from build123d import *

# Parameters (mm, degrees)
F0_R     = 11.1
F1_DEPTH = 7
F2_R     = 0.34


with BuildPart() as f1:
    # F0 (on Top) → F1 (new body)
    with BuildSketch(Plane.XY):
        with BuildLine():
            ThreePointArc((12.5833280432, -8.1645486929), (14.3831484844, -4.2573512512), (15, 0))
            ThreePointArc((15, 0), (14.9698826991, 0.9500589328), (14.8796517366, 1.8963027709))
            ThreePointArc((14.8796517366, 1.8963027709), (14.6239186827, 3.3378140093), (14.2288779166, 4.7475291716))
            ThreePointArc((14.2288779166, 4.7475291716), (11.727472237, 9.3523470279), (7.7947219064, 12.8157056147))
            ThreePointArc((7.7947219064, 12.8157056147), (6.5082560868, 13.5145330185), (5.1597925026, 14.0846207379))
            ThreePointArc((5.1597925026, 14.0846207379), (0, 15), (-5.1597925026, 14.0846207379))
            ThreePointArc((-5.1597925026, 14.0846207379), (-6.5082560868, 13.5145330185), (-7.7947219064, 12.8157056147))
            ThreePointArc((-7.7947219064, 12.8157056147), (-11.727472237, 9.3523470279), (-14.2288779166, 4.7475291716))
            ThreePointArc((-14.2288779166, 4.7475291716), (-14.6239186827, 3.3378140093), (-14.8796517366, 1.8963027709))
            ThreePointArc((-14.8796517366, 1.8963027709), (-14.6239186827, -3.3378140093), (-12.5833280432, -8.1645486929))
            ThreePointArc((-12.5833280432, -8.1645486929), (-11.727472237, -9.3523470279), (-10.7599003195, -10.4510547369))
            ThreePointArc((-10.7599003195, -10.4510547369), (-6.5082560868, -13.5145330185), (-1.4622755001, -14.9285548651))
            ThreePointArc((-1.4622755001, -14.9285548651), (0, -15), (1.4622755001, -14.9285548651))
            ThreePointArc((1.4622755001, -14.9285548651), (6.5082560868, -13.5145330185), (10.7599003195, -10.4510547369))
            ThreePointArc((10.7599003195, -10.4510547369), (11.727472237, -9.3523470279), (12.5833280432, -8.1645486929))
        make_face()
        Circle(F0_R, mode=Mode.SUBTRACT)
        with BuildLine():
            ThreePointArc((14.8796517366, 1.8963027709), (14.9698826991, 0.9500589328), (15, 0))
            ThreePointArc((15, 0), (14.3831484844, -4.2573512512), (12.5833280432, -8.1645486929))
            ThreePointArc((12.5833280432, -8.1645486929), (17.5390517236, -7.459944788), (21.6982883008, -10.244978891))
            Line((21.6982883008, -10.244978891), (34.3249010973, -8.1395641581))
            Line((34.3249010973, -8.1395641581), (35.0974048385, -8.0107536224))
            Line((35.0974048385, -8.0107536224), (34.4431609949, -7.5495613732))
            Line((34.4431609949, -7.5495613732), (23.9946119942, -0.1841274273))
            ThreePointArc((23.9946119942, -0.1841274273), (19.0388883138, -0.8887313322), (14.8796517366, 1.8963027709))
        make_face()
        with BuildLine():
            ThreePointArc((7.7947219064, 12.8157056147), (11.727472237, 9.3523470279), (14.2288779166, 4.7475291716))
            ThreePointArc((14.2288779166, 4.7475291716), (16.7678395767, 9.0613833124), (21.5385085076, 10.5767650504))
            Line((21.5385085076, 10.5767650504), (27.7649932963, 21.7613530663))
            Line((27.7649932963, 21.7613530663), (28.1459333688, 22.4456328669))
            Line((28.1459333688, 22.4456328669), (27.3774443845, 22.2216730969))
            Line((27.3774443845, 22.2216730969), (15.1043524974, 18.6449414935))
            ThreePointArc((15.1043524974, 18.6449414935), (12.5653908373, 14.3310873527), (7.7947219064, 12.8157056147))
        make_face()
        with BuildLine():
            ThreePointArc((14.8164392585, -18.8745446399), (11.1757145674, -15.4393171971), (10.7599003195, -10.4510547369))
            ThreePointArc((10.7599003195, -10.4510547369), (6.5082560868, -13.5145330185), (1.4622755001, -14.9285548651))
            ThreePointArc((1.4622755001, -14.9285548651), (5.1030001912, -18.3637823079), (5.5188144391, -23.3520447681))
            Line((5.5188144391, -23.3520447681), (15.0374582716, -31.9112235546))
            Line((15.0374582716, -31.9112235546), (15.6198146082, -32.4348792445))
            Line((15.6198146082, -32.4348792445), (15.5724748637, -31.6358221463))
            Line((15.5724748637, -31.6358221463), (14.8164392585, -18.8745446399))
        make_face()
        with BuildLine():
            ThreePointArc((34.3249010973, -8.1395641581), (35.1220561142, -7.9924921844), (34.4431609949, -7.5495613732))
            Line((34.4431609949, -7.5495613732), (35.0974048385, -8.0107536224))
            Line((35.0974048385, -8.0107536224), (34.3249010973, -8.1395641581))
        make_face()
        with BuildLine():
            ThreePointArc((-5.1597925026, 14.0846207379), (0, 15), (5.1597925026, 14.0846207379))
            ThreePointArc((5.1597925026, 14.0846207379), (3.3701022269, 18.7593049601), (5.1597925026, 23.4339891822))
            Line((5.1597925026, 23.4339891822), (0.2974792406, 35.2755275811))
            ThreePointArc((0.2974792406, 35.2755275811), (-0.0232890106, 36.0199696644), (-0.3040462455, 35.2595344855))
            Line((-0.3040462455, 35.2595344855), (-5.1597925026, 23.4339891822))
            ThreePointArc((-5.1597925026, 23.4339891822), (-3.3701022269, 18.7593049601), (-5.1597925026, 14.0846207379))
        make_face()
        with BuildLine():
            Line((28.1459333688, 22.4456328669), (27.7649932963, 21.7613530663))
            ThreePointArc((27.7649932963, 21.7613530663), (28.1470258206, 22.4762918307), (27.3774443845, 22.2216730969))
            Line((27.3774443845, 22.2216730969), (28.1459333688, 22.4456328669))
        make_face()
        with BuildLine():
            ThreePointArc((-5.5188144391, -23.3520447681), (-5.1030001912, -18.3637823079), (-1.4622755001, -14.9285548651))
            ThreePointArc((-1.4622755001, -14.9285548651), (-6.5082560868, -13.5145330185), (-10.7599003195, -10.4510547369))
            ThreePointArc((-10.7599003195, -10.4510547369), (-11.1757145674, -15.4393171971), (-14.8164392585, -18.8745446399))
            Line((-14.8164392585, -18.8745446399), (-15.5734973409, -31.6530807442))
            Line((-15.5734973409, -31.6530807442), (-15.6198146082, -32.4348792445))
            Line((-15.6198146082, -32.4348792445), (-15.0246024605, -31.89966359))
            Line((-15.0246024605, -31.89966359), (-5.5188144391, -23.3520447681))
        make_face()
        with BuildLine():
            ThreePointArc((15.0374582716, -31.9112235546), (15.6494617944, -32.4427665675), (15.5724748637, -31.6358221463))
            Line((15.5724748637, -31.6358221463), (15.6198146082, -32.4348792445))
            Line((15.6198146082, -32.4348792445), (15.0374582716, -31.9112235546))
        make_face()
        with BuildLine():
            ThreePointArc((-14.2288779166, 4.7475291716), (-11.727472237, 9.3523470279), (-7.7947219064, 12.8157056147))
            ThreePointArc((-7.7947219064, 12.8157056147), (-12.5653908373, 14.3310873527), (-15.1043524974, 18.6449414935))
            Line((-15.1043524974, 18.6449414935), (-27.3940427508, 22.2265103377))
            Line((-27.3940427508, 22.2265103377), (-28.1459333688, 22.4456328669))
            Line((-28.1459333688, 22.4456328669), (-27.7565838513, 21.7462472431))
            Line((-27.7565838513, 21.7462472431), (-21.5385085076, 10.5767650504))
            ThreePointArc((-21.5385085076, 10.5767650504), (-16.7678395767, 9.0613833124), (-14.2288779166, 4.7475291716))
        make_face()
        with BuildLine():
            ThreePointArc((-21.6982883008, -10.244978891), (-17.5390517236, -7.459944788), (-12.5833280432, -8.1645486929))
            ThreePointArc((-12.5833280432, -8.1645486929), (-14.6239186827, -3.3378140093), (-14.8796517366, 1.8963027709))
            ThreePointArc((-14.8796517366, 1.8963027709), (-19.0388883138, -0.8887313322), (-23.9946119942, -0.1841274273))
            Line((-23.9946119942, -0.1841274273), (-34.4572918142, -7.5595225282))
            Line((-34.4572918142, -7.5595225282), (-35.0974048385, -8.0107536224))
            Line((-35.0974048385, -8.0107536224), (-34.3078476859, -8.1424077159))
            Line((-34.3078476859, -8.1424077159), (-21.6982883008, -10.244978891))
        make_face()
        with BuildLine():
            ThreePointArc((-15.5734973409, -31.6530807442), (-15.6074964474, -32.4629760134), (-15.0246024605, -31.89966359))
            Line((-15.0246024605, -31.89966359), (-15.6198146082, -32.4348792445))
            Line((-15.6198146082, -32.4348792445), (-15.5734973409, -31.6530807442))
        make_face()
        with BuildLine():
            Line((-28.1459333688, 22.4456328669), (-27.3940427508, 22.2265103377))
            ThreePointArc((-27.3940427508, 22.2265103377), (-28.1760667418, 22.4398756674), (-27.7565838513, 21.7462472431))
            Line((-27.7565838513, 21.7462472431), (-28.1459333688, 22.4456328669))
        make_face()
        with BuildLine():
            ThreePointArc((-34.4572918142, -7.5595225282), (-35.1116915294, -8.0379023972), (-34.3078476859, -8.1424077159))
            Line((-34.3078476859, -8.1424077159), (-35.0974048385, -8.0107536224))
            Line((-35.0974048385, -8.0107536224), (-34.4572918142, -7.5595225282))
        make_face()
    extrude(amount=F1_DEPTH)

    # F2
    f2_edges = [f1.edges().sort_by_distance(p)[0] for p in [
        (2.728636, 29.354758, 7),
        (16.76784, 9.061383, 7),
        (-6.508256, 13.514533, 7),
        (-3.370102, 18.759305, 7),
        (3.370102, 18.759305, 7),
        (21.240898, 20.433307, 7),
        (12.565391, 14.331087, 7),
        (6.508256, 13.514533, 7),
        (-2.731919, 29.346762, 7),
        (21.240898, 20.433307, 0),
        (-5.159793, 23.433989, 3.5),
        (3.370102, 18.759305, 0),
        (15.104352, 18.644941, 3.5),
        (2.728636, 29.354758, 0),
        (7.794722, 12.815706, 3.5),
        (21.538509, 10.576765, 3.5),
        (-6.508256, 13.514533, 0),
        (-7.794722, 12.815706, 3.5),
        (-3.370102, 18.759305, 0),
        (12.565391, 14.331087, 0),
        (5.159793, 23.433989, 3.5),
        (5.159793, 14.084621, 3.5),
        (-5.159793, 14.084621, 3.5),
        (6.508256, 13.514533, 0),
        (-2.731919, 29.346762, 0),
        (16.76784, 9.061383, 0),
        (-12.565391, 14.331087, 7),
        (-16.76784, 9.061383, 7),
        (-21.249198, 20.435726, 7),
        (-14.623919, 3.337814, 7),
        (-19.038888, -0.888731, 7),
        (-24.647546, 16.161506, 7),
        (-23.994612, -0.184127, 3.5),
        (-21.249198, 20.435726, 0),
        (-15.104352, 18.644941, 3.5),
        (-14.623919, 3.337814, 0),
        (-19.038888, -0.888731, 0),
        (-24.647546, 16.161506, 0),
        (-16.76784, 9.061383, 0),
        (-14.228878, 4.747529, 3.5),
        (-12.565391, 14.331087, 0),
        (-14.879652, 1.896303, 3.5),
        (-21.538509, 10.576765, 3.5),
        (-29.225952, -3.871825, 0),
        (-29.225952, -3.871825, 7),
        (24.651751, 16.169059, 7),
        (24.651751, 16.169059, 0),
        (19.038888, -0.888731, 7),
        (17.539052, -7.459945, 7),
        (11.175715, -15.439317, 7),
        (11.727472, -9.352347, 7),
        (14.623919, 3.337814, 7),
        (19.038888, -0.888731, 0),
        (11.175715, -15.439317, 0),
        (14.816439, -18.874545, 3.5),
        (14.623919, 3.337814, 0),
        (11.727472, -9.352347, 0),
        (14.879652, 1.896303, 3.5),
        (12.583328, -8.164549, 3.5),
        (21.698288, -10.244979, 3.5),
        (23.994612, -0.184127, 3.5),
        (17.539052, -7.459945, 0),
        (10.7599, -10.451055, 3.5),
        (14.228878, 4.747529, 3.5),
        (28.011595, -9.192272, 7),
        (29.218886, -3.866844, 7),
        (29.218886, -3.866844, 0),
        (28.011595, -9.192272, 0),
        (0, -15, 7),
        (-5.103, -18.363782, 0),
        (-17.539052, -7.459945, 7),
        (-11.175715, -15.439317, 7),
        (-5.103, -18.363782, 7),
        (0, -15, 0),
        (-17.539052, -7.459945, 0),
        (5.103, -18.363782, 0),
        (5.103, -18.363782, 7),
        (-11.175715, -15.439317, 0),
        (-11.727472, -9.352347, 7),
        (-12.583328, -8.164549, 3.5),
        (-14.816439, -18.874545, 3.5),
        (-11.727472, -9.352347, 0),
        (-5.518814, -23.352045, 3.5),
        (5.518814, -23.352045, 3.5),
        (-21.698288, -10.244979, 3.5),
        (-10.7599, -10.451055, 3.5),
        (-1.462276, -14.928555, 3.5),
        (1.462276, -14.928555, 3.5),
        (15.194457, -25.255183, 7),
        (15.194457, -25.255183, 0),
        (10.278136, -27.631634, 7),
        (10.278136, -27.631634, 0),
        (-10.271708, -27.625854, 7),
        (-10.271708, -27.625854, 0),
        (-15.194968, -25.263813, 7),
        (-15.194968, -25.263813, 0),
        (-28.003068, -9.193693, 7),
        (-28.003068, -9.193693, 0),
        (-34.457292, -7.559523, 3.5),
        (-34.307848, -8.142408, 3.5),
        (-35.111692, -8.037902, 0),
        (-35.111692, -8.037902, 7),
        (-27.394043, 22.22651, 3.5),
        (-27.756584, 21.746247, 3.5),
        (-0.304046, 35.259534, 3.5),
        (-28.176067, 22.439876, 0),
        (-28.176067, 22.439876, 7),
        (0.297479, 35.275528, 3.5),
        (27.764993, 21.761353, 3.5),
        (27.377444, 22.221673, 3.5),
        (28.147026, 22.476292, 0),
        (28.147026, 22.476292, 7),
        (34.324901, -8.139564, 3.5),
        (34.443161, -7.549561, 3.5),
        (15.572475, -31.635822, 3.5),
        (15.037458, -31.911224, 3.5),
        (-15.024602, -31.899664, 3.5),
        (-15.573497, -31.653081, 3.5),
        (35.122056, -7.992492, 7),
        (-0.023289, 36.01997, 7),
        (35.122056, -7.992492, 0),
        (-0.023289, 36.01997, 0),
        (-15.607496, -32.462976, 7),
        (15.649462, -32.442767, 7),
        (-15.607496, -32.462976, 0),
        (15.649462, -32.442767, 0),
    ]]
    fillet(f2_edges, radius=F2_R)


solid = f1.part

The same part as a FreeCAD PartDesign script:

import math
import FreeCAD as App
import Part
import Sketcher

V = App.Vector
Q = App.Units.Quantity


def edges_at(feature, points):
    """Names of the edges that pass closest to the given points."""
    edges = feature.Shape.Edges
    near = lambda p: min(range(len(edges)), key=lambda i: edges[i].distToShape(Part.Vertex(*p))[0])
    return sorted({f"Edge{near(p) + 1}" for p in points})

doc = App.newDocument("Part")
params = doc.addObject("Spreadsheet::Sheet", "Params")
for row, (alias, value) in enumerate([
    ("sketch1_radius", "15 mm"),
    ("sketch1_radius2", "7 mm"),
    ("sketch1_diameter", "22.2 mm"),
    ("pad1_length", "7 mm"),
    ("fillet_radius", "0.34 mm"),
], start=1):
    params.set(f"A{row}", alias)
    params.set(f"B{row}", "=" + value)
    params.setAlias(f"B{row}", alias)

body = doc.addObject("PartDesign::Body", "Body")

# Sketch on XY plane
sketch1 = body.newObject("Sketcher::SketchObject", "Sketch")
sketch1.AttachmentSupport = (doc.getObject("XY_Plane"), [""])
sketch1.MapMode = "FlatFace"
sketch1.addGeometry([
    Part.ArcOfCircle(Part.Circle(V(0, 0, 0), V(0, 0, 1), 15), math.radians(-44.17), math.radians(-32.98)),  # 0
    Part.ArcOfCircle(Part.Circle(V(15.98, -14.28, 0), V(0, 0, 1), 7), math.radians(35), math.radians(119)),  # 1
    Part.LineSegment(V(21.7, -10.24, 0), V(34.32, -8.14, 0)),  # 2
    Part.ArcOfCircle(Part.Circle(V(34.69, -7.91, 0), V(0, 0, 1), 0.44), math.radians(-148), math.radians(125)),  # 3
    Part.LineSegment(V(34.44, -7.55, 0), V(23.99, -0.18, 0)),  # 4
    Part.ArcOfCircle(Part.Circle(V(20.6, 5.94, 0), V(0, 0, 1), 7), math.radians(-145), math.radians(-61)),  # 5
    Part.ArcOfCircle(Part.Circle(V(0, 0, 0), V(0, 0, 1), 15), math.radians(7.26), math.radians(18.45)),  # 6
    Part.ArcOfCircle(Part.Circle(V(21.13, 3.59, 0), V(0, 0, 1), 7), math.radians(87), math.radians(170)),  # 7
    Part.LineSegment(V(21.54, 10.58, 0), V(27.76, 21.76, 0)),  # 8
    Part.ArcOfCircle(Part.Circle(V(27.81, 22.2, 0), V(0, 0, 1), 0.44), math.radians(-96), math.radians(177)),  # 9
    Part.LineSegment(V(27.38, 22.22, 0), V(15.1, 18.64, 0)),  # 10
    Part.ArcOfCircle(Part.Circle(V(8.2, 19.8, 0), V(0, 0, 1), 7), math.radians(-93), math.radians(-10)),  # 11
    Part.ArcOfCircle(Part.Circle(V(0, 0, 0), V(0, 0, 1), 15), math.radians(58.69), math.radians(69.88)),  # 12
    Part.ArcOfCircle(Part.Circle(V(10.37, 18.76, 0), V(0, 0, 1), 7), math.radians(138), math.radians(222)),  # 13
    Part.LineSegment(V(5.16, 23.43, 0), V(0.3, 35.28, 0)),  # 14
    Part.ArcOfCircle(Part.Circle(V(-0.01, 35.58, 0), V(0, 0, 1), 0.44), math.radians(-45), math.radians(228)),  # 15
    Part.LineSegment(V(-0.3, 35.26, 0), V(-5.16, 23.43, 0)),  # 16
    Part.ArcOfCircle(Part.Circle(V(-10.37, 18.76, 0), V(0, 0, 1), 7), math.radians(-42), math.radians(42)),  # 17
    Part.ArcOfCircle(Part.Circle(V(0, 0, 0), V(0, 0, 1), 15), math.radians(110.12), math.radians(121.31)),  # 18
    Part.ArcOfCircle(Part.Circle(V(-8.2, 19.8, 0), V(0, 0, 1), 7), math.radians(-170), math.radians(-87)),  # 19
    Part.LineSegment(V(-15.1, 18.64, 0), V(-27.39, 22.23, 0)),  # 20
    Part.ArcOfCircle(Part.Circle(V(-27.83, 22.18, 0), V(0, 0, 1), 0.44), math.radians(7), math.radians(279)),  # 21
    Part.LineSegment(V(-27.76, 21.75, 0), V(-21.54, 10.58, 0)),  # 22
    Part.ArcOfCircle(Part.Circle(V(-21.13, 3.59, 0), V(0, 0, 1), 7), math.radians(10), math.radians(93)),  # 23
    Part.ArcOfCircle(Part.Circle(V(0, 0, 0), V(0, 0, 1), 15), math.radians(161.55), math.radians(172.74)),  # 24
    Part.ArcOfCircle(Part.Circle(V(-20.6, 5.94, 0), V(0, 0, 1), 7), math.radians(-119), math.radians(-35)),  # 25
    Part.LineSegment(V(-23.99, -0.18, 0), V(-34.46, -7.56, 0)),  # 26
    Part.ArcOfCircle(Part.Circle(V(-34.69, -7.93, 0), V(0, 0, 1), 0.44), math.radians(58), math.radians(331)),  # 27
    Part.LineSegment(V(-34.31, -8.14, 0), V(-21.7, -10.24, 0)),  # 28
    Part.ArcOfCircle(Part.Circle(V(-15.98, -14.28, 0), V(0, 0, 1), 7), math.radians(61), math.radians(145)),  # 29
    Part.ArcOfCircle(Part.Circle(V(0, 0, 0), V(0, 0, 1), 15), math.radians(-147.02), math.radians(-135.83)),  # 30
    Part.ArcOfCircle(Part.Circle(V(-17.48, -12.4, 0), V(0, 0, 1), 7), math.radians(-68), math.radians(16)),  # 31
    Part.LineSegment(V(-14.82, -18.87, 0), V(-15.57, -31.65, 0)),  # 32
    Part.ArcOfCircle(Part.Circle(V(-15.43, -32.06, 0), V(0, 0, 1), 0.44), math.radians(109), math.radians(382)),  # 33
    Part.LineSegment(V(-15.02, -31.9, 0), V(-5.52, -23.35, 0)),  # 34
    Part.ArcOfCircle(Part.Circle(V(1.2, -21.4, 0), V(0, 0, 1), 7), math.radians(112), math.radians(196)),  # 35
    Part.ArcOfCircle(Part.Circle(V(0, 0, 0), V(0, 0, 1), 15), math.radians(-95.59), math.radians(-84.41)),  # 36
    Part.ArcOfCircle(Part.Circle(V(-1.2, -21.4, 0), V(0, 0, 1), 7), math.radians(-16), math.radians(68)),  # 37
    Part.LineSegment(V(5.52, -23.35, 0), V(15.04, -31.91, 0)),  # 38
    Part.ArcOfCircle(Part.Circle(V(15.45, -32.05, 0), V(0, 0, 1), 0.44), math.radians(161), math.radians(434)),  # 39
    Part.LineSegment(V(15.57, -31.64, 0), V(14.82, -18.87, 0)),  # 40
    Part.ArcOfCircle(Part.Circle(V(17.48, -12.4, 0), V(0, 0, 1), 7), math.radians(164), math.radians(248)),  # 41
    Part.Circle(V(0, 0, 0), V(0, 0, 1), 11.1),  # 42
], False)
sketch1.addConstraint([
    Sketcher.Constraint("Coincident", 0, 2, 1, 2),
    Sketcher.Constraint("Coincident", 1, 1, 2, 1),
    Sketcher.Constraint("Coincident", 2, 2, 3, 1),
    Sketcher.Constraint("Coincident", 3, 2, 4, 1),
    Sketcher.Constraint("Coincident", 4, 2, 5, 2),
    Sketcher.Constraint("Coincident", 5, 1, 6, 1),
    Sketcher.Constraint("Coincident", 6, 2, 7, 2),
    Sketcher.Constraint("Coincident", 7, 1, 8, 1),
    Sketcher.Constraint("Coincident", 8, 2, 9, 1),
    Sketcher.Constraint("Coincident", 9, 2, 10, 1),
    Sketcher.Constraint("Coincident", 10, 2, 11, 2),
    Sketcher.Constraint("Coincident", 11, 1, 12, 1),
    Sketcher.Constraint("Coincident", 12, 2, 13, 2),
    Sketcher.Constraint("Coincident", 13, 1, 14, 1),
    Sketcher.Constraint("Coincident", 14, 2, 15, 1),
    Sketcher.Constraint("Coincident", 15, 2, 16, 1),
    Sketcher.Constraint("Coincident", 16, 2, 17, 2),
    Sketcher.Constraint("Coincident", 17, 1, 18, 1),
    Sketcher.Constraint("Coincident", 18, 2, 19, 2),
    Sketcher.Constraint("Coincident", 19, 1, 20, 1),
    Sketcher.Constraint("Coincident", 20, 2, 21, 1),
    Sketcher.Constraint("Coincident", 21, 2, 22, 1),
    Sketcher.Constraint("Coincident", 22, 2, 23, 2),
    Sketcher.Constraint("Coincident", 23, 1, 24, 1),
    Sketcher.Constraint("Coincident", 24, 2, 25, 2),
    Sketcher.Constraint("Coincident", 25, 1, 26, 1),
    Sketcher.Constraint("Coincident", 26, 2, 27, 1),
    Sketcher.Constraint("Coincident", 27, 2, 28, 1),
    Sketcher.Constraint("Coincident", 28, 2, 29, 2),
    Sketcher.Constraint("Coincident", 29, 1, 30, 1),
    Sketcher.Constraint("Coincident", 30, 2, 31, 2),
    Sketcher.Constraint("Coincident", 31, 1, 32, 1),
    Sketcher.Constraint("Coincident", 32, 2, 33, 1),
    Sketcher.Constraint("Coincident", 33, 2, 34, 1),
    Sketcher.Constraint("Coincident", 34, 2, 35, 2),
    Sketcher.Constraint("Coincident", 35, 1, 36, 1),
    Sketcher.Constraint("Coincident", 36, 2, 37, 2),
    Sketcher.Constraint("Coincident", 37, 1, 38, 1),
    Sketcher.Constraint("Coincident", 38, 2, 39, 1),
    Sketcher.Constraint("Coincident", 39, 2, 40, 1),
    Sketcher.Constraint("Coincident", 40, 2, 41, 2),
    Sketcher.Constraint("Coincident", 41, 1, 0, 1),
    Sketcher.Constraint("Coincident", 0, 3, -1, 1),
    Sketcher.Constraint("Coincident", 6, 3, -1, 1),
    Sketcher.Constraint("Coincident", 12, 3, -1, 1),
    Sketcher.Constraint("Coincident", 18, 3, -1, 1),
    Sketcher.Constraint("Coincident", 24, 3, -1, 1),
    Sketcher.Constraint("Coincident", 30, 3, -1, 1),
    Sketcher.Constraint("Coincident", 36, 3, -1, 1),
    Sketcher.Constraint("Coincident", 42, 3, -1, 1),
    Sketcher.Constraint("Equal", 1, 5),
    Sketcher.Constraint("Equal", 0, 6),
    Sketcher.Constraint("Equal", 5, 7),
    Sketcher.Constraint("Equal", 3, 9),
    Sketcher.Constraint("Equal", 7, 11),
    Sketcher.Constraint("Equal", 6, 12),
    Sketcher.Constraint("Equal", 11, 13),
    Sketcher.Constraint("Equal", 9, 15),
    Sketcher.Constraint("Equal", 13, 17),
    Sketcher.Constraint("Equal", 12, 18),
    Sketcher.Constraint("Equal", 17, 19),
    Sketcher.Constraint("Equal", 15, 21),
    Sketcher.Constraint("Equal", 19, 23),
    Sketcher.Constraint("Equal", 18, 24),
    Sketcher.Constraint("Equal", 23, 25),
    Sketcher.Constraint("Equal", 21, 27),
    Sketcher.Constraint("Equal", 25, 29),
    Sketcher.Constraint("Equal", 24, 30),
    Sketcher.Constraint("Equal", 29, 31),
    Sketcher.Constraint("Equal", 27, 33),
    Sketcher.Constraint("Equal", 31, 35),
    Sketcher.Constraint("Equal", 30, 36),
    Sketcher.Constraint("Equal", 35, 37),
    Sketcher.Constraint("Equal", 33, 39),
    Sketcher.Constraint("Equal", 37, 41),
    Sketcher.Constraint("Symmetric", 13, 3, 17, 3, -2),
    Sketcher.Constraint("Symmetric", 11, 3, 19, 3, -2),
    Sketcher.Constraint("Symmetric", 7, 3, 23, 3, -2),
    Sketcher.Constraint("Symmetric", 5, 3, 25, 3, -2),
    Sketcher.Constraint("Symmetric", 1, 3, 29, 3, -2),
    Sketcher.Constraint("Symmetric", 35, 3, 37, 3, -2),
    Sketcher.Constraint("Symmetric", 31, 3, 41, 3, -2),
    Sketcher.Constraint("Horizontal", 13, 1, 16, 2),
    Sketcher.Constraint("Horizontal", 10, 2, 19, 1),
    Sketcher.Constraint("Horizontal", 7, 1, 22, 2),
    Sketcher.Constraint("Horizontal", 4, 2, 25, 1),
    Sketcher.Constraint("Horizontal", 1, 1, 28, 2),
    Sketcher.Constraint("Horizontal", 34, 2, 37, 1),
    Sketcher.Constraint("Horizontal", 31, 1, 40, 2),
    Sketcher.Constraint("Vertical", 12, 2, 13, 1),
    Sketcher.Constraint("Equal", 2, 8),
    Sketcher.Constraint("Equal", 4, 10),
    Sketcher.Constraint("Equal", 8, 14),
    Sketcher.Constraint("Equal", 10, 16),
    Sketcher.Constraint("Equal", 14, 20),
    Sketcher.Constraint("Equal", 16, 22),
    Sketcher.Constraint("Equal", 20, 26),
    Sketcher.Constraint("Equal", 22, 28),
    Sketcher.Constraint("Equal", 26, 32),
    Sketcher.Constraint("Equal", 28, 34),
    Sketcher.Constraint("Equal", 32, 38),
    Sketcher.Constraint("Equal", 34, 40),
    Sketcher.Constraint("Radius", 0, Q("15 mm")),
    Sketcher.Constraint("Radius", 1, Q("7 mm")),
    Sketcher.Constraint("Diameter", 42, Q("22.2 mm")),
    Sketcher.Constraint("Radius", 3, Q("0.436484 mm")),
    Sketcher.Constraint("DistanceY", -1, 1, 21, 3, Q("22.176899 mm")),
    Sketcher.Constraint("DistanceY", 27, 3, -1, 1, Q("7.9295 mm")),
    Sketcher.Constraint("DistanceX", -1, 1, 2, 2, Q("34.324901 mm")),
    Sketcher.Constraint("DistanceX", 30, 2, -1, 1, Q("10.7599 mm")),
    Sketcher.Constraint("DistanceY", 1, 3, -1, 1, Q("14.28444 mm")),
    Sketcher.Constraint("DistanceY", 3, 3, -1, 1, Q("7.90671 mm")),
    Sketcher.Constraint("DistanceX", -1, 1, 7, 3, Q("21.132268 mm")),
    Sketcher.Constraint("DistanceX", 15, 3, -1, 1, Q("0.011688 mm")),
    Sketcher.Constraint("DistanceY", -1, 1, 15, 3, Q("35.58364 mm")),
    Sketcher.Constraint("DistanceY", 31, 3, -1, 1, Q("12.402131 mm")),
    Sketcher.Constraint("DistanceX", -1, 1, 35, 3, Q("1.203782 mm")),
    Sketcher.Constraint("DistanceY", 35, 3, -1, 1, Q("21.400968 mm")),
    Sketcher.Constraint("DistanceY", 39, 3, -1, 1, Q("32.054681 mm")),
    Sketcher.Constraint("DistanceX", -1, 1, 0, 2, Q("12.583328 mm")),
    Sketcher.Constraint("DistanceX", -1, 1, 1, 1, Q("21.698288 mm")),
    Sketcher.Constraint("DistanceX", -1, 1, 3, 2, Q("34.443161 mm")),
    Sketcher.Constraint("DistanceY", 3, 2, -1, 1, Q("7.549561 mm")),
    Sketcher.Constraint("DistanceX", -1, 1, 4, 2, Q("23.994612 mm")),
    Sketcher.Constraint("DistanceX", -1, 1, 5, 1, Q("14.879652 mm")),
    Sketcher.Constraint("DistanceY", -1, 1, 6, 2, Q("4.747529 mm")),
    Sketcher.Constraint("DistanceX", -1, 1, 7, 1, Q("21.538509 mm")),
    Sketcher.Constraint("DistanceY", -1, 1, 10, 2, Q("18.644941 mm")),
    Sketcher.Constraint("DistanceX", -1, 1, 11, 1, Q("7.794722 mm")),
    Sketcher.Constraint("DistanceY", -1, 1, 12, 2, Q("14.084621 mm")),
    Sketcher.Constraint("DistanceY", -1, 1, 13, 1, Q("23.433989 mm")),
    Sketcher.Constraint("DistanceY", -1, 1, 20, 2, Q("22.22651 mm")),
    Sketcher.Constraint("DistanceX", 26, 2, -1, 1, Q("34.457292 mm")),
    Sketcher.Constraint("DistanceX", 31, 1, -1, 1, Q("14.816439 mm")),
    Sketcher.Constraint("DistanceY", 32, 2, -1, 1, Q("31.653081 mm")),
    Sketcher.Constraint("DistanceX", -1, 1, 38, 2, Q("15.037458 mm")),
    Sketcher.Constraint("Distance", 4, Q("12.783653 mm")),
    Sketcher.Constraint("DistanceX", -1, 1, 9, 3, Q("27.813123 mm")),
    Sketcher.Constraint("DistanceY", -1, 1, 9, 3, Q("22.195175 mm")),
    Sketcher.Constraint("DistanceX", -1, 1, 11, 3, Q("8.200962 mm")),
    Sketcher.Constraint("DistanceX", 33, 3, -1, 1, Q("15.428632 mm")),
    Sketcher.Constraint("DistanceX", -1, 1, 39, 3, Q("15.449694 mm")),
])
sketch1.setExpression("Constraints[102]", "Params.sketch1_radius")
sketch1.setExpression("Constraints[103]", "Params.sketch1_radius2")
sketch1.setExpression("Constraints[104]", "Params.sketch1_diameter")
pad1 = body.newObject("PartDesign::Pad", "Pad")
pad1.Profile = sketch1
pad1.setExpression("Length", "Params.pad1_length")
doc.recompute()

fillet = body.newObject("PartDesign::Fillet", "Fillet")
fillet.Base = (pad1, edges_at(pad1, [
    (2.729, 29.355, 7),
    (16.768, 9.061, 7),
    (-6.508, 13.515, 7),
    (-3.37, 18.759, 7),
    (3.37, 18.759, 7),
    (21.241, 20.433, 7),
    (12.565, 14.331, 7),
    (6.508, 13.515, 7),
    (-2.732, 29.347, 7),
    (21.241, 20.433, 0),
    (-5.16, 23.434, 3.5),
    (3.37, 18.759, 0),
    (15.104, 18.645, 3.5),
    (2.729, 29.355, 0),
    (7.795, 12.816, 3.5),
    (21.539, 10.577, 3.5),
    (-6.508, 13.515, 0),
    (-7.795, 12.816, 3.5),
    (-3.37, 18.759, 0),
    (12.565, 14.331, 0),
    (5.16, 23.434, 3.5),
    (5.16, 14.085, 3.5),
    (-5.16, 14.085, 3.5),
    (6.508, 13.515, 0),
    (-2.732, 29.347, 0),
    (16.768, 9.061, 0),
    (-12.565, 14.331, 7),
    (-16.768, 9.061, 7),
    (-21.249, 20.436, 7),
    (-14.624, 3.338, 7),
    (-19.039, -0.889, 7),
    (-24.648, 16.162, 7),
    (-23.995, -0.184, 3.5),
    (-21.249, 20.436, 0),
    (-15.104, 18.645, 3.5),
    (-14.624, 3.338, 0),
    (-19.039, -0.889, 0),
    (-24.648, 16.162, 0),
    (-16.768, 9.061, 0),
    (-14.229, 4.748, 3.5),
    (-12.565, 14.331, 0),
    (-14.88, 1.896, 3.5),
    (-21.539, 10.577, 3.5),
    (-29.226, -3.872, 0),
    (-29.226, -3.872, 7),
    (24.652, 16.169, 7),
    (24.652, 16.169, 0),
    (19.039, -0.889, 7),
    (17.539, -7.46, 7),
    (11.176, -15.439, 7),
    (11.727, -9.352, 7),
    (14.624, 3.338, 7),
    (19.039, -0.889, 0),
    (11.176, -15.439, 0),
    (14.816, -18.875, 3.5),
    (14.624, 3.338, 0),
    (11.727, -9.352, 0),
    (14.88, 1.896, 3.5),
    (12.583, -8.165, 3.5),
    (21.698, -10.245, 3.5),
    (23.995, -0.184, 3.5),
    (17.539, -7.46, 0),
    (10.76, -10.451, 3.5),
    (14.229, 4.748, 3.5),
    (28.012, -9.192, 7),
    (29.219, -3.867, 7),
    (29.219, -3.867, 0),
    (28.012, -9.192, 0),
    (0, -15, 7),
    (-5.103, -18.364, 0),
    (-17.539, -7.46, 7),
    (-11.176, -15.439, 7),
    (-5.103, -18.364, 7),
    (0, -15, 0),
    (-17.539, -7.46, 0),
    (5.103, -18.364, 0),
    (5.103, -18.364, 7),
    (-11.176, -15.439, 0),
    (-11.727, -9.352, 7),
    (-12.583, -8.165, 3.5),
    (-14.816, -18.875, 3.5),
    (-11.727, -9.352, 0),
    (-5.519, -23.352, 3.5),
    (5.519, -23.352, 3.5),
    (-21.698, -10.245, 3.5),
    (-10.76, -10.451, 3.5),
    (-1.462, -14.929, 3.5),
    (1.462, -14.929, 3.5),
    (15.194, -25.255, 7),
    (15.194, -25.255, 0),
    (10.278, -27.632, 7),
    (10.278, -27.632, 0),
    (-10.272, -27.626, 7),
    (-10.272, -27.626, 0),
    (-15.195, -25.264, 7),
    (-15.195, -25.264, 0),
    (-28.003, -9.194, 7),
    (-28.003, -9.194, 0),
    (-34.457, -7.56, 3.5),
    (-34.308, -8.142, 3.5),
    (-35.112, -8.038, 0),
    (-35.112, -8.038, 7),
    (-27.394, 22.227, 3.5),
    (-27.757, 21.746, 3.5),
    (-0.304, 35.26, 3.5),
    (-28.176, 22.44, 0),
    (-28.176, 22.44, 7),
    (0.297, 35.276, 3.5),
    (27.765, 21.761, 3.5),
    (27.377, 22.222, 3.5),
    (28.147, 22.476, 0),
    (28.147, 22.476, 7),
    (34.325, -8.14, 3.5),
    (34.443, -7.55, 3.5),
    (15.572, -31.636, 3.5),
    (15.037, -31.911, 3.5),
    (-15.025, -31.9, 3.5),
    (-15.573, -31.653, 3.5),
    (35.122, -7.992, 7),
    (-0.023, 36.02, 7),
    (35.122, -7.992, 0),
    (-0.023, 36.02, 0),
    (-15.607, -32.463, 7),
    (15.649, -32.443, 7),
    (-15.607, -32.463, 0),
    (15.649, -32.443, 0),
]))
fillet.setExpression("Radius", "Params.fillet_radius")

doc.recompute()
